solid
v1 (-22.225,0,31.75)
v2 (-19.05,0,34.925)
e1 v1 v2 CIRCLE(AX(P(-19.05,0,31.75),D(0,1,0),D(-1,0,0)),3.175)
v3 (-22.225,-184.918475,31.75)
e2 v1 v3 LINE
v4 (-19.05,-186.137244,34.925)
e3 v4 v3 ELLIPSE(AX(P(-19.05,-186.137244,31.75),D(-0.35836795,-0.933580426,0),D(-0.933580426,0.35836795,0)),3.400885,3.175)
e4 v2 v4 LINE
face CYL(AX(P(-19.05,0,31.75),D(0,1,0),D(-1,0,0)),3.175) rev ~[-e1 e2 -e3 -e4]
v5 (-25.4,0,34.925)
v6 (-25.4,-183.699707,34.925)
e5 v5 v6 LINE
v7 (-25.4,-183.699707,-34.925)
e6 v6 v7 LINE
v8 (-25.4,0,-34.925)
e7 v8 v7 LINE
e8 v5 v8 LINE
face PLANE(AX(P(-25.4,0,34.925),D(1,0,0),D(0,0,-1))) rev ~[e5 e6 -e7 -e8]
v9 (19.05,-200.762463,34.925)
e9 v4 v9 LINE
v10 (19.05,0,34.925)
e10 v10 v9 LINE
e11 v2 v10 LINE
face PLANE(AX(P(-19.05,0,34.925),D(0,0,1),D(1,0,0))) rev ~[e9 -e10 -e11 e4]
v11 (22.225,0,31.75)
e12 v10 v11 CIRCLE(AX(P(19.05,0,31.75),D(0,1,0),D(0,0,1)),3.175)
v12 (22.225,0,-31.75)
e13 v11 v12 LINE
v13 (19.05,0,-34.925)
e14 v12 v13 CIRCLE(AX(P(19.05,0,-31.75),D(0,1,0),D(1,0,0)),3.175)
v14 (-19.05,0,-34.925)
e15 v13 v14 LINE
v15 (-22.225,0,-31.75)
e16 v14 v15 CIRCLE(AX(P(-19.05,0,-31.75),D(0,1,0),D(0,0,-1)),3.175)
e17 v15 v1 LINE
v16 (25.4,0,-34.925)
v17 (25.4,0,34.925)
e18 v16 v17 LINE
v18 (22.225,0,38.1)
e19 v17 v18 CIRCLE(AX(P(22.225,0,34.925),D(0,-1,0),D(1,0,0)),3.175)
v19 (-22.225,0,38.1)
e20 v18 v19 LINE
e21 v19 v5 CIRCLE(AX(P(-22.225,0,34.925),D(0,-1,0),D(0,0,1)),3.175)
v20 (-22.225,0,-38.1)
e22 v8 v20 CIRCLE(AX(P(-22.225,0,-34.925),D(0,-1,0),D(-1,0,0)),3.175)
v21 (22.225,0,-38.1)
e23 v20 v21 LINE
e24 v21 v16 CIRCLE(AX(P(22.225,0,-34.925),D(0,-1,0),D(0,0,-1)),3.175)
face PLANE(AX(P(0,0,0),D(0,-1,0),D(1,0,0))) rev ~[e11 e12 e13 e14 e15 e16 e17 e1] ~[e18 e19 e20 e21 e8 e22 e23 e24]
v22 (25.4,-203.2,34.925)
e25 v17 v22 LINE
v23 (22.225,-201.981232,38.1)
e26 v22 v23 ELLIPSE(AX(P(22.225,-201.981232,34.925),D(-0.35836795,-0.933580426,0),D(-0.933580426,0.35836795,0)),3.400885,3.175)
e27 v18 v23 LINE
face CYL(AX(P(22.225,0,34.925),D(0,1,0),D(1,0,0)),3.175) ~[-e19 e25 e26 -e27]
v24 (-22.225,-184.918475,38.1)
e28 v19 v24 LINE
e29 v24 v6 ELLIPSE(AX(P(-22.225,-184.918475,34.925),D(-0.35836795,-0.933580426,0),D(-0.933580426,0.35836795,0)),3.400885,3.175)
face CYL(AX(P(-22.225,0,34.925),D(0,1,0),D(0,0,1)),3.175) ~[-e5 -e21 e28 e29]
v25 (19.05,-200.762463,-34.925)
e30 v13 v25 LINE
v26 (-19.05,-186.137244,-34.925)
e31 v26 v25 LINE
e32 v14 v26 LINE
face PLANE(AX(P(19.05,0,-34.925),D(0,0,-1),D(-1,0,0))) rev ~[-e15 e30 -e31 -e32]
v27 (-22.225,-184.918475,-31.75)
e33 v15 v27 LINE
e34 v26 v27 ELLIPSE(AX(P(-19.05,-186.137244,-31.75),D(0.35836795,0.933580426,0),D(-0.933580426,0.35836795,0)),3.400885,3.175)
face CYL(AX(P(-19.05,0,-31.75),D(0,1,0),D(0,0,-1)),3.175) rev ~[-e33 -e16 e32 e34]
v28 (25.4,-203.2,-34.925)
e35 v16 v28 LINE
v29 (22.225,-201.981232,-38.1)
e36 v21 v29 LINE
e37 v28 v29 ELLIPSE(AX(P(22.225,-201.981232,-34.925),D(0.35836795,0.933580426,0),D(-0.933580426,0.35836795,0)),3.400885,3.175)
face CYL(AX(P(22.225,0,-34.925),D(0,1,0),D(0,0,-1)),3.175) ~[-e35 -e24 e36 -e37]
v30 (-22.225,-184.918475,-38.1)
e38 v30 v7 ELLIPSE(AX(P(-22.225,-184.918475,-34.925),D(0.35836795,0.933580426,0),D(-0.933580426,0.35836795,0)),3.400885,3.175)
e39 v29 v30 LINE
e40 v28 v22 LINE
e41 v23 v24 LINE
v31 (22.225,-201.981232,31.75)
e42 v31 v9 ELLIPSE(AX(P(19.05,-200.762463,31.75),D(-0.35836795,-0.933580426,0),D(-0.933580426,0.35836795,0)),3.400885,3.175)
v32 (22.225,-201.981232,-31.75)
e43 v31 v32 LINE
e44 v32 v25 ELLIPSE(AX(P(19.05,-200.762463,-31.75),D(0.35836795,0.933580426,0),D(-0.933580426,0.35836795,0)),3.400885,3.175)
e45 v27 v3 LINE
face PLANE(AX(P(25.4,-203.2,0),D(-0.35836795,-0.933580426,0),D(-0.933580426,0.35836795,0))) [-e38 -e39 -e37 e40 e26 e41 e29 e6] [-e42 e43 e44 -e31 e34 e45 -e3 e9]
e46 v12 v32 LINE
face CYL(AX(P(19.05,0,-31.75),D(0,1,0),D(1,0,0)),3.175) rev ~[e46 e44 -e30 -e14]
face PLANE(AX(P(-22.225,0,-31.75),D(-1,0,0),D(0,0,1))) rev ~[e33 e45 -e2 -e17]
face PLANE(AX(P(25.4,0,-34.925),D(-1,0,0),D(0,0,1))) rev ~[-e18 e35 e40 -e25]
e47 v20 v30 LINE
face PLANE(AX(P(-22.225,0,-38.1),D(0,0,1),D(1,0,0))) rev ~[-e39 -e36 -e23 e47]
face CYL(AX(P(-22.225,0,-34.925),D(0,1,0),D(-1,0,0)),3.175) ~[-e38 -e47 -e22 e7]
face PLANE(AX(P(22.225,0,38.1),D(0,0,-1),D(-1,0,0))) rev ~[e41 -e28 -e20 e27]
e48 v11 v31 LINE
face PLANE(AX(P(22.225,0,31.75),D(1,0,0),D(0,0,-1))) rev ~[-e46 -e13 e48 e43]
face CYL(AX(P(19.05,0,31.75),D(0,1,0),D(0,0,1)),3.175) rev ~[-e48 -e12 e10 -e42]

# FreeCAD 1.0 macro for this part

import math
import FreeCAD as App
import Part
import Sketcher

V = App.Vector
Q = App.Units.Quantity


def add_polygon(sketch, points):
    """Adds a closed chain of lines whose ends are joined by coincident constraints."""
    first, n = sketch.GeometryCount, len(points)
    for a, b in zip(points, points[1:] + points[:1]):
        sketch.addGeometry(Part.LineSegment(App.Vector(*a, 0), App.Vector(*b, 0)), False)
    for i in range(n):
        sketch.addConstraint(Sketcher.Constraint("Coincident", first + i, 2, first + (i + 1) % n, 1))

doc = App.newDocument("Part")
params = doc.addObject("Spreadsheet::Sheet", "Params")
for row, (alias, value) in enumerate([
    ("sketch1_width", "1.5 in"),
    ("sketch1_height", "2.5 in"),
    ("pad1_length", "8 in"),
    ("sketch2_width", "2 in"),
], start=1):
    params.set(f"A{row}", alias)
    params.set(f"B{row}", "=" + value)
    params.setAlias(f"B{row}", alias)

body = doc.addObject("PartDesign::Body", "Body")

# Sketch on XZ plane
sketch1 = doc.addObject("Sketcher::SketchObject", "Sketch")
body.addObject(sketch1)
sketch1.AttachmentSupport = (doc.XZ_Plane, [""])
sketch1.MapMode = "FlatFace"
sketch1.addGeometry(Part.ArcOfCircle(Part.Circle(V(22.2, 34.9, 0), V(0, 0, 1), 3.2), math.radians(0), math.radians(90)), False)
sketch1.addGeometry(Part.LineSegment(V(22.2, 38.1, 0), V(-22.2, 38.1, 0)), False)
sketch1.addGeometry(Part.ArcOfCircle(Part.Circle(V(-22.2, 34.9, 0), V(0, 0, 1), 3.2), math.radians(90), math.radians(180)), False)
sketch1.addGeometry(Part.LineSegment(V(-25.4, 34.9, 0), V(-25.4, -34.9, 0)), False)
sketch1.addGeometry(Part.ArcOfCircle(Part.Circle(V(-22.2, -34.9, 0), V(0, 0, 1), 3.2), math.radians(180), math.radians(270)), False)
sketch1.addGeometry(Part.LineSegment(V(-22.2, -38.1, 0), V(22.2, -38.1, 0)), False)
sketch1.addGeometry(Part.ArcOfCircle(Part.Circle(V(22.2, -34.9, 0), V(0, 0, 1), 3.2), math.radians(-90), math.radians(0)), False)
sketch1.addGeometry(Part.LineSegment(V(25.4, -34.9, 0), V(25.4, 34.9, 0)), False)
sketch1.addGeometry(Part.ArcOfCircle(Part.Circle(V(-19.1, 31.8, 0), V(0, 0, 1), 3.2), math.radians(90), math.radians(180)), False)
sketch1.addGeometry(Part.LineSegment(V(-19.1, 34.9, 0), V(19.1, 34.9, 0)), False)
sketch1.addGeometry(Part.ArcOfCircle(Part.Circle(V(19.1, 31.8, 0), V(0, 0, 1), 3.2), math.radians(0), math.radians(90)), False)
sketch1.addGeometry(Part.LineSegment(V(22.2, 31.8, 0), V(22.2, -31.8, 0)), False)
sketch1.addGeometry(Part.ArcOfCircle(Part.Circle(V(19.1, -31.8, 0), V(0, 0, 1), 3.2), math.radians(-90), math.radians(0)), False)
sketch1.addGeometry(Part.LineSegment(V(19.1, -34.9, 0), V(-19.1, -34.9, 0)), False)
sketch1.addGeometry(Part.ArcOfCircle(Part.Circle(V(-19.1, -31.8, 0), V(0, 0, 1), 3.2), math.radians(180), math.radians(270)), False)
sketch1.addGeometry(Part.LineSegment(V(-22.2, -31.8, 0), V(-22.2, 31.8, 0)), False)
sketch1.addConstraint(Sketcher.Constraint("Tangent", 0, 2, 1, 1))
sketch1.addConstraint(Sketcher.Constraint("Tangent", 1, 2, 2, 1))
sketch1.addConstraint(Sketcher.Constraint("Tangent", 2, 2, 3, 1))
sketch1.addConstraint(Sketcher.Constraint("Tangent", 3, 2, 4, 1))
sketch1.addConstraint(Sketcher.Constraint("Tangent", 4, 2, 5, 1))
sketch1.addConstraint(Sketcher.Constraint("Tangent", 5, 2, 6, 1))
sketch1.addConstraint(Sketcher.Constraint("Tangent", 6, 2, 7, 1))
sketch1.addConstraint(Sketcher.Constraint("Tangent", 7, 2, 0, 1))
sketch1.addConstraint(Sketcher.Constraint("Tangent", 8, 1, 9, 1))
sketch1.addConstraint(Sketcher.Constraint("Tangent", 9, 2, 10, 2))
sketch1.addConstraint(Sketcher.Constraint("Tangent", 10, 1, 11, 1))
sketch1.addConstraint(Sketcher.Constraint("Tangent", 11, 2, 12, 2))
sketch1.addConstraint(Sketcher.Constraint("Tangent", 12, 1, 13, 1))
sketch1.addConstraint(Sketcher.Constraint("Tangent", 13, 2, 14, 2))
sketch1.addConstraint(Sketcher.Constraint("Tangent", 14, 1, 15, 1))
sketch1.addConstraint(Sketcher.Constraint("Tangent", 15, 2, 8, 2))
sketch1.addConstraint(Sketcher.Constraint("Horizontal", 1))
sketch1.addConstraint(Sketcher.Constraint("Vertical", 3))
sketch1.addConstraint(Sketcher.Constraint("Horizontal", 5))
sketch1.addConstraint(Sketcher.Constraint("Vertical", 7))
sketch1.addConstraint(Sketcher.Constraint("Horizontal", 9))
sketch1.addConstraint(Sketcher.Constraint("Vertical", 11))
sketch1.addConstraint(Sketcher.Constraint("Horizontal", 13))
sketch1.addConstraint(Sketcher.Constraint("Vertical", 15))
sketch1.addConstraint(Sketcher.Constraint("Equal", 0, 2))
sketch1.addConstraint(Sketcher.Constraint("Equal", 2, 4))
sketch1.addConstraint(Sketcher.Constraint("Equal", 4, 6))
sketch1.addConstraint(Sketcher.Constraint("Equal", 6, 8))
sketch1.addConstraint(Sketcher.Constraint("Equal", 8, 10))
sketch1.addConstraint(Sketcher.Constraint("Equal", 10, 12))
sketch1.addConstraint(Sketcher.Constraint("Equal", 12, 14))
sketch1.addConstraint(Sketcher.Constraint("Symmetric", 0, 3, 4, 3, -1, 1))
sketch1.addConstraint(Sketcher.Constraint("Symmetric", 8, 3, 12, 3, -1, 1))
sketch1.addConstraint(Sketcher.Constraint("Horizontal", 7, 2, 8, 1))
sketch1.addConstraint(Sketcher.Constraint("Vertical", 5, 2, 10, 1))
sketch1.addConstraint(Sketcher.Constraint("DistanceX", 9, 1, 9, 2, Q("1.5 in")))
sketch1.addConstraint(Sketcher.Constraint("DistanceY", 11, 2, 11, 1, Q("2.5 in")))
sketch1.addConstraint(Sketcher.Constraint("DistanceX", 2, 2, -1, 1, Q("1 in")))
sketch1.setExpression("Constraints[35]", "Params.sketch1_width")
sketch1.setExpression("Constraints[36]", "Params.sketch1_height")
pad1 = doc.addObject("PartDesign::Pad", "Pad")
body.addObject(pad1)
pad1.Profile = sketch1
pad1.setExpression("Length", "Params.pad1_length")

# Sketch on XY plane
sketch2 = doc.addObject("Sketcher::SketchObject", "Sketch001")
body.addObject(sketch2)
sketch2.AttachmentSupport = (doc.XY_Plane, [""])
sketch2.MapMode = "FlatFace"
add_polygon(sketch2, [(-25, -203), (25, -203), (-25, -184)])  # lines 0-2
sketch2.addConstraint(Sketcher.Constraint("Horizontal", 0))
sketch2.addConstraint(Sketcher.Constraint("Vertical", 2))
sketch2.addConstraint(Sketcher.Constraint("DistanceX", 0, 1, 0, 2, Q("2 in")))
sketch2.addConstraint(Sketcher.Constraint("DistanceX", -1, 1, 0, 2, Q("1 in")))
sketch2.addConstraint(Sketcher.Constraint("DistanceY", 0, 2, -1, 1, Q("8 in")))
sketch2.addConstraint(Sketcher.Constraint("Angle", 1, Q("159 deg")))
sketch2.setExpression("Constraints[5]", "Params.sketch2_width")
pocket1 = doc.addObject("PartDesign::Pocket", "Pocket")
body.addObject(pocket1)
pocket1.Profile = sketch2
pocket1.Type = "ThroughAll"
pocket1.Midplane = True

doc.recompute()
